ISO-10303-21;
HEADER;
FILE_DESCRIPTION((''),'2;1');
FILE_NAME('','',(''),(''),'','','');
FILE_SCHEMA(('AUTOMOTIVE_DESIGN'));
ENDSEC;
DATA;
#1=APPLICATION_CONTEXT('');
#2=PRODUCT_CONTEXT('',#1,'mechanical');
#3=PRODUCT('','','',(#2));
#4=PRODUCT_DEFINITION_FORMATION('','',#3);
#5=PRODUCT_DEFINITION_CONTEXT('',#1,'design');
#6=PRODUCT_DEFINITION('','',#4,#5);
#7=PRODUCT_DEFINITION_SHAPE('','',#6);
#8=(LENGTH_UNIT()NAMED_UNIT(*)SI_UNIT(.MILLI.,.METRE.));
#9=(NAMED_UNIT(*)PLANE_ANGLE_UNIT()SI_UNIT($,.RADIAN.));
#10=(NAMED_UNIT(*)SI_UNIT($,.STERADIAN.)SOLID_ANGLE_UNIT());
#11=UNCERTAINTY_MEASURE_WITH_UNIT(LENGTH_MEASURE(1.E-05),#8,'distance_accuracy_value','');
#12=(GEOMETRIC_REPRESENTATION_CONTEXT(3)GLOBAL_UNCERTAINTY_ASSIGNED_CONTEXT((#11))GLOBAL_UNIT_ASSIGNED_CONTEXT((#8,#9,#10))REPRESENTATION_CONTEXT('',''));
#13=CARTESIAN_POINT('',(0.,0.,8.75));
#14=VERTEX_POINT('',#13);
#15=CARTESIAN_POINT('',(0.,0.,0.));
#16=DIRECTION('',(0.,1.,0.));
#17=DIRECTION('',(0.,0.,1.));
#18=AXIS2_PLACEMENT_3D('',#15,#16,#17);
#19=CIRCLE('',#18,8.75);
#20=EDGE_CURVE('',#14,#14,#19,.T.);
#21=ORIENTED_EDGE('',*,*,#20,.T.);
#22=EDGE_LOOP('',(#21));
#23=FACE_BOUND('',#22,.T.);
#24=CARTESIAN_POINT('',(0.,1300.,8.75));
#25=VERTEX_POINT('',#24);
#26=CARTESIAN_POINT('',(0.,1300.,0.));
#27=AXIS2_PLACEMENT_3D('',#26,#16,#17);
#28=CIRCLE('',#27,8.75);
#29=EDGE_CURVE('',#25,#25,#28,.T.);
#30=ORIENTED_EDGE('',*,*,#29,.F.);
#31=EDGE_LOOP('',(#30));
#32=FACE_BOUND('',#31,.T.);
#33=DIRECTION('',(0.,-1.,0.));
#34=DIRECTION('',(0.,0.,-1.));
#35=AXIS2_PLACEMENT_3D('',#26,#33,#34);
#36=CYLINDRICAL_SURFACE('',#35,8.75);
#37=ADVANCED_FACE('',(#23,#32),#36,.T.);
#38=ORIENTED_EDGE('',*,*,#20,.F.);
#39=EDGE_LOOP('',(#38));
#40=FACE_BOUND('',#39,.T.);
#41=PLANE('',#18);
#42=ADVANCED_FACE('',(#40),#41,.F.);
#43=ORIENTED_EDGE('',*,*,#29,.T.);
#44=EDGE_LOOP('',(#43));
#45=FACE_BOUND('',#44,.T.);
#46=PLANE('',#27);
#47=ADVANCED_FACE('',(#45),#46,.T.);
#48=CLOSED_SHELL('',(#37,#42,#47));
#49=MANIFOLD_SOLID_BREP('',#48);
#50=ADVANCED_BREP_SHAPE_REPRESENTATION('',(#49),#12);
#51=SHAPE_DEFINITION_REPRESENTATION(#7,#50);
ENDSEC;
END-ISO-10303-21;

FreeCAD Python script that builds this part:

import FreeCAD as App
import Part
import Sketcher
Q = App.Units.Quantity

doc = App.newDocument("Part")
body = doc.addObject("PartDesign::Body", "Body")

# Sketch on XZ plane
sketch1 = body.newObject("Sketcher::SketchObject", "Sketch")
sketch1.AttachmentSupport = (doc.getObject("XZ_Plane"), [""])
sketch1.MapMode = "FlatFace"
sketch1.addGeometry(Part.Circle(App.Vector(0, 0, 0), App.Vector(0, 0, 1), 9), False)
sketch1.addConstraint([
    Sketcher.Constraint("Coincident", 0, 3, -1, 1),
    Sketcher.Constraint("Diameter", 0, Q("17.5 mm")),
])
pad1 = body.newObject("PartDesign::Pad", "Pad")
pad1.Profile = sketch1
pad1.Length = 1300
pad1.Reversed = True

doc.recompute()
